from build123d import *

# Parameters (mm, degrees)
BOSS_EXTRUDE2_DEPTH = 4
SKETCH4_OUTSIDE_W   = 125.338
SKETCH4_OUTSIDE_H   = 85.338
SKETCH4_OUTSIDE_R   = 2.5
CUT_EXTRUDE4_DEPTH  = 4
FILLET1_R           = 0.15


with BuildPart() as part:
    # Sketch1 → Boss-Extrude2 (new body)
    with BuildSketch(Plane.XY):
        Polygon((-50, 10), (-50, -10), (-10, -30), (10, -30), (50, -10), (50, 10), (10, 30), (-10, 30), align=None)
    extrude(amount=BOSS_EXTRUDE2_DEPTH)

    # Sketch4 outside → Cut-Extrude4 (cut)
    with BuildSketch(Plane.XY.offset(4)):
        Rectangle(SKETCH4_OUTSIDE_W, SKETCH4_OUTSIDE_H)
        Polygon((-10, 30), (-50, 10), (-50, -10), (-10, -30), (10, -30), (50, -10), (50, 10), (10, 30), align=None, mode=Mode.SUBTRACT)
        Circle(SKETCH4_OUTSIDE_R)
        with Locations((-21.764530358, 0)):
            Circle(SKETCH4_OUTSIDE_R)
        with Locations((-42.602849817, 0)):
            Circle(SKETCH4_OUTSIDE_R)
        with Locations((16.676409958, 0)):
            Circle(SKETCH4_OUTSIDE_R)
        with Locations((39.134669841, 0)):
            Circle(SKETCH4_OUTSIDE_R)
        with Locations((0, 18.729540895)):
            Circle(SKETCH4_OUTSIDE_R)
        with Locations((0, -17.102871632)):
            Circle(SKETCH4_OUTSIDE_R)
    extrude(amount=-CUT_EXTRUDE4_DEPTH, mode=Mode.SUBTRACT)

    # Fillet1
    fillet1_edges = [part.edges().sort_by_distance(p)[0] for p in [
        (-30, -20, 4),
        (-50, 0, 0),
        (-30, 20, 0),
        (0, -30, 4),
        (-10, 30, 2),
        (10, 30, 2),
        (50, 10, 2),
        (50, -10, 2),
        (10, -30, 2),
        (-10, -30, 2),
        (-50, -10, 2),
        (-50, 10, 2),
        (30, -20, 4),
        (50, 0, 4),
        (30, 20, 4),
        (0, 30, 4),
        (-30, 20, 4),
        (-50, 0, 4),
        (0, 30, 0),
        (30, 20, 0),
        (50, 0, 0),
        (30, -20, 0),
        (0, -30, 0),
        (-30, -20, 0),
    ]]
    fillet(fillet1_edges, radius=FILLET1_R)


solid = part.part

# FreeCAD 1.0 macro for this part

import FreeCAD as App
import Part
import Sketcher
Q = App.Units.Quantity


def edges_at(feature, points):
    """Names of the edges that pass closest to the given points."""
    edges = feature.Shape.Edges
    near = lambda p: min(range(len(edges)), key=lambda i: edges[i].distToShape(Part.Vertex(*p))[0])
    return sorted({f"Edge{near(p) + 1}" for p in points})

doc = App.newDocument("Part")
body = doc.addObject("PartDesign::Body", "Body")

sketch1 = body.newObject("Sketcher::SketchObject", "Sketch")
sketch1.AttachmentSupport = (doc.getObject("XY_Plane"), [""])
sketch1.MapMode = "FlatFace"
sketch1.addGeometry([
    Part.LineSegment(App.Vector(-50, 10, 0), App.Vector(-50, -10, 0)),
    Part.LineSegment(App.Vector(-50, -10, 0), App.Vector(-10, -30, 0)),
    Part.LineSegment(App.Vector(-10, -30, 0), App.Vector(10, -30, 0)),
    Part.LineSegment(App.Vector(10, -30, 0), App.Vector(50, -10, 0)),
    Part.LineSegment(App.Vector(50, -10, 0), App.Vector(50, 10, 0)),
    Part.LineSegment(App.Vector(50, 10, 0), App.Vector(10, 30, 0)),
    Part.LineSegment(App.Vector(10, 30, 0), App.Vector(-10, 30, 0)),
    Part.LineSegment(App.Vector(-10, 30, 0), App.Vector(-50, 10, 0)),
], False)
sketch1.addConstraint([
    Sketcher.Constraint("Coincident", 0, 2, 1, 1),
    Sketcher.Constraint("Coincident", 1, 2, 2, 1),
    Sketcher.Constraint("Coincident", 2, 2, 3, 1),
    Sketcher.Constraint("Coincident", 3, 2, 4, 1),
    Sketcher.Constraint("Coincident", 4, 2, 5, 1),
    Sketcher.Constraint("Coincident", 5, 2, 6, 1),
    Sketcher.Constraint("Coincident", 6, 2, 7, 1),
    Sketcher.Constraint("Coincident", 7, 2, 0, 1),
    Sketcher.Constraint("Vertical", 0),
    Sketcher.Constraint("Horizontal", 2),
    Sketcher.Constraint("Vertical", 4),
    Sketcher.Constraint("Horizontal", 6),
    Sketcher.Constraint("Symmetric", 0, 2, 4, 2, -1, 1),
    Sketcher.Constraint("Symmetric", 1, 2, 5, 2, -1, 1),
    Sketcher.Constraint("Parallel", 3, 7),
    Sketcher.Constraint("Horizontal", 0, 2, 3, 2),
    Sketcher.Constraint("Horizontal", 4, 2, 7, 2),
    Sketcher.Constraint("Vertical", 2, 2, 5, 2),
    Sketcher.Constraint("Equal", 6, 0),
    Sketcher.Constraint("DistanceX", 2, 1, 2, 2, Q("20 mm")),
    Sketcher.Constraint("DistanceX", 0, 2, -1, 1, Q("50 mm")),
    Sketcher.Constraint("DistanceY", 1, 2, -1, 1, Q("30 mm")),
])
pad1 = body.newObject("PartDesign::Pad", "Pad")
pad1.Profile = sketch1
pad1.Length = 4

sketch2 = body.newObject("Sketcher::SketchObject", "Sketch001")
sketch2.AttachmentSupport = (doc.getObject("XY_Plane"), [""])
sketch2.MapMode = "FlatFace"
sketch2.AttachmentOffset = App.Placement(App.Vector(0, 0, 4), App.Rotation())
sketch2.addGeometry([
    Part.LineSegment(App.Vector(-62.669, 42.669, 0), App.Vector(-62.669, -42.669, 0)),
    Part.LineSegment(App.Vector(-62.669, -42.669, 0), App.Vector(62.669, -42.669, 0)),
    Part.LineSegment(App.Vector(62.669, -42.669, 0), App.Vector(62.669, 42.669, 0)),
    Part.LineSegment(App.Vector(62.669, 42.669, 0), App.Vector(-62.669, 42.669, 0)),
    Part.LineSegment(App.Vector(-50, 10, 0), App.Vector(-10, 30, 0)),
    Part.LineSegment(App.Vector(-10, 30, 0), App.Vector(10, 30, 0)),
    Part.LineSegment(App.Vector(10, 30, 0), App.Vector(50, 10, 0)),
    Part.LineSegment(App.Vector(50, 10, 0), App.Vector(50, -10, 0)),
    Part.LineSegment(App.Vector(50, -10, 0), App.Vector(10, -30, 0)),
    Part.LineSegment(App.Vector(10, -30, 0), App.Vector(-10, -30, 0)),
    Part.LineSegment(App.Vector(-10, -30, 0), App.Vector(-50, -10, 0)),
    Part.LineSegment(App.Vector(-50, -10, 0), App.Vector(-50, 10, 0)),
    Part.Circle(App.Vector(0, 0, 0), App.Vector(0, 0, 1), 2.5),
    Part.Circle(App.Vector(-21.76453, 0, 0), App.Vector(0, 0, 1), 2.5),
    Part.Circle(App.Vector(-42.60285, 0, 0), App.Vector(0, 0, 1), 2.5),
    Part.Circle(App.Vector(16.67641, 0, 0), App.Vector(0, 0, 1), 2.5),
    Part.Circle(App.Vector(39.13467, 0, 0), App.Vector(0, 0, 1), 2.5),
    Part.Circle(App.Vector(0, 18.729541, 0), App.Vector(0, 0, 1), 2.5),
    Part.Circle(App.Vector(0, -17.102872, 0), App.Vector(0, 0, 1), 2.5),
], False)
sketch2.addConstraint([
    Sketcher.Constraint("Coincident", 0, 2, 1, 1),
    Sketcher.Constraint("Coincident", 1, 2, 2, 1),
    Sketcher.Constraint("Coincident", 2, 2, 3, 1),
    Sketcher.Constraint("Coincident", 3, 2, 0, 1),
    Sketcher.Constraint("Coincident", 4, 2, 5, 1),
    Sketcher.Constraint("Coincident", 5, 2, 6, 1),
    Sketcher.Constraint("Coincident", 6, 2, 7, 1),
    Sketcher.Constraint("Coincident", 7, 2, 8, 1),
    Sketcher.Constraint("Coincident", 8, 2, 9, 1),
    Sketcher.Constraint("Coincident", 9, 2, 10, 1),
    Sketcher.Constraint("Coincident", 10, 2, 11, 1),
    Sketcher.Constraint("Coincident", 11, 2, 4, 1),
    Sketcher.Constraint("Vertical", 0),
    Sketcher.Constraint("Horizontal", 1),
    Sketcher.Constraint("Vertical", 2),
    Sketcher.Constraint("Horizontal", 3),
    Sketcher.Constraint("Horizontal", 5),
    Sketcher.Constraint("Vertical", 7),
    Sketcher.Constraint("Horizontal", 9),
    Sketcher.Constraint("Vertical", 11),
    Sketcher.Constraint("Coincident", 12, 3, -1, 1),
    Sketcher.Constraint("Equal", 12, 13),
    Sketcher.Constraint("Equal", 13, 14),
    Sketcher.Constraint("Equal", 14, 15),
    Sketcher.Constraint("Equal", 15, 16),
    Sketcher.Constraint("Equal", 16, 17),
    Sketcher.Constraint("Equal", 17, 18),
    Sketcher.Constraint("Symmetric", 0, 2, 2, 2, -1, 1),
    Sketcher.Constraint("Symmetric", 4, 2, 8, 2, -1, 1),
    Sketcher.Constraint("Symmetric", 6, 2, 10, 2, -1, 1),
    Sketcher.Constraint("PointOnObject", 13, 3, -1),
    Sketcher.Constraint("PointOnObject", 14, 3, -1),
    Sketcher.Constraint("PointOnObject", 15, 3, -1),
    Sketcher.Constraint("PointOnObject", 16, 3, -1),
    Sketcher.Constraint("PointOnObject", 17, 3, -2),
    Sketcher.Constraint("PointOnObject", 18, 3, -2),
    Sketcher.Constraint("Parallel", 4, 8),
    Sketcher.Constraint("Parallel", 6, 10),
    Sketcher.Constraint("Horizontal", 7, 2, 10, 2),
    Sketcher.Constraint("Vertical", 5, 2, 8, 2),
    Sketcher.Constraint("Equal", 9, 7),
    Sketcher.Constraint("Diameter", 12, Q("5 mm")),
    Sketcher.Constraint("DistanceX", 5, 1, 5, 2, Q("20 mm")),
    Sketcher.Constraint("DistanceY", -1, 1, 4, 2, Q("30 mm")),
    Sketcher.Constraint("DistanceX", -1, 1, 6, 2, Q("50 mm")),
    Sketcher.Constraint("DistanceX", 1, 1, 1, 2, Q("125.338 mm")),
    Sketcher.Constraint("DistanceY", 0, 2, 0, 1, Q("85.338 mm")),
    Sketcher.Constraint("DistanceX", 13, 3, 16, 3, Q("60.8992 mm")),
    Sketcher.Constraint("DistanceX", 13, 3, -1, 1, Q("21.76453 mm")),
    Sketcher.Constraint("DistanceX", 14, 3, -1, 1, Q("42.60285 mm")),
    Sketcher.Constraint("DistanceX", -1, 1, 15, 3, Q("16.67641 mm")),
    Sketcher.Constraint("DistanceY", -1, 1, 17, 3, Q("18.729541 mm")),
    Sketcher.Constraint("DistanceY", 18, 3, -1, 1, Q("17.102872 mm")),
])
pocket1 = body.newObject("PartDesign::Pocket", "Pocket")
pocket1.Profile = sketch2
pocket1.Length = 4
doc.recompute()

fillet = body.newObject("PartDesign::Fillet", "Fillet")
fillet.Base = (pocket1, edges_at(pocket1, [
    (-30, -20, 4),
    (-50, 0, 0),
    (-30, 20, 0),
    (0, -30, 4),
    (-10, 30, 2),
    (10, 30, 2),
    (50, 10, 2),
    (50, -10, 2),
    (10, -30, 2),
    (-10, -30, 2),
    (-50, -10, 2),
    (-50, 10, 2),
    (30, -20, 4),
    (50, 0, 4),
    (30, 20, 4),
    (0, 30, 4),
    (-30, 20, 4),
    (-50, 0, 4),
    (0, 30, 0),
    (30, 20, 0),
    (50, 0, 0),
    (30, -20, 0),
    (0, -30, 0),
    (-30, -20, 0),
]))
fillet.Radius = 0.15

doc.recompute()
